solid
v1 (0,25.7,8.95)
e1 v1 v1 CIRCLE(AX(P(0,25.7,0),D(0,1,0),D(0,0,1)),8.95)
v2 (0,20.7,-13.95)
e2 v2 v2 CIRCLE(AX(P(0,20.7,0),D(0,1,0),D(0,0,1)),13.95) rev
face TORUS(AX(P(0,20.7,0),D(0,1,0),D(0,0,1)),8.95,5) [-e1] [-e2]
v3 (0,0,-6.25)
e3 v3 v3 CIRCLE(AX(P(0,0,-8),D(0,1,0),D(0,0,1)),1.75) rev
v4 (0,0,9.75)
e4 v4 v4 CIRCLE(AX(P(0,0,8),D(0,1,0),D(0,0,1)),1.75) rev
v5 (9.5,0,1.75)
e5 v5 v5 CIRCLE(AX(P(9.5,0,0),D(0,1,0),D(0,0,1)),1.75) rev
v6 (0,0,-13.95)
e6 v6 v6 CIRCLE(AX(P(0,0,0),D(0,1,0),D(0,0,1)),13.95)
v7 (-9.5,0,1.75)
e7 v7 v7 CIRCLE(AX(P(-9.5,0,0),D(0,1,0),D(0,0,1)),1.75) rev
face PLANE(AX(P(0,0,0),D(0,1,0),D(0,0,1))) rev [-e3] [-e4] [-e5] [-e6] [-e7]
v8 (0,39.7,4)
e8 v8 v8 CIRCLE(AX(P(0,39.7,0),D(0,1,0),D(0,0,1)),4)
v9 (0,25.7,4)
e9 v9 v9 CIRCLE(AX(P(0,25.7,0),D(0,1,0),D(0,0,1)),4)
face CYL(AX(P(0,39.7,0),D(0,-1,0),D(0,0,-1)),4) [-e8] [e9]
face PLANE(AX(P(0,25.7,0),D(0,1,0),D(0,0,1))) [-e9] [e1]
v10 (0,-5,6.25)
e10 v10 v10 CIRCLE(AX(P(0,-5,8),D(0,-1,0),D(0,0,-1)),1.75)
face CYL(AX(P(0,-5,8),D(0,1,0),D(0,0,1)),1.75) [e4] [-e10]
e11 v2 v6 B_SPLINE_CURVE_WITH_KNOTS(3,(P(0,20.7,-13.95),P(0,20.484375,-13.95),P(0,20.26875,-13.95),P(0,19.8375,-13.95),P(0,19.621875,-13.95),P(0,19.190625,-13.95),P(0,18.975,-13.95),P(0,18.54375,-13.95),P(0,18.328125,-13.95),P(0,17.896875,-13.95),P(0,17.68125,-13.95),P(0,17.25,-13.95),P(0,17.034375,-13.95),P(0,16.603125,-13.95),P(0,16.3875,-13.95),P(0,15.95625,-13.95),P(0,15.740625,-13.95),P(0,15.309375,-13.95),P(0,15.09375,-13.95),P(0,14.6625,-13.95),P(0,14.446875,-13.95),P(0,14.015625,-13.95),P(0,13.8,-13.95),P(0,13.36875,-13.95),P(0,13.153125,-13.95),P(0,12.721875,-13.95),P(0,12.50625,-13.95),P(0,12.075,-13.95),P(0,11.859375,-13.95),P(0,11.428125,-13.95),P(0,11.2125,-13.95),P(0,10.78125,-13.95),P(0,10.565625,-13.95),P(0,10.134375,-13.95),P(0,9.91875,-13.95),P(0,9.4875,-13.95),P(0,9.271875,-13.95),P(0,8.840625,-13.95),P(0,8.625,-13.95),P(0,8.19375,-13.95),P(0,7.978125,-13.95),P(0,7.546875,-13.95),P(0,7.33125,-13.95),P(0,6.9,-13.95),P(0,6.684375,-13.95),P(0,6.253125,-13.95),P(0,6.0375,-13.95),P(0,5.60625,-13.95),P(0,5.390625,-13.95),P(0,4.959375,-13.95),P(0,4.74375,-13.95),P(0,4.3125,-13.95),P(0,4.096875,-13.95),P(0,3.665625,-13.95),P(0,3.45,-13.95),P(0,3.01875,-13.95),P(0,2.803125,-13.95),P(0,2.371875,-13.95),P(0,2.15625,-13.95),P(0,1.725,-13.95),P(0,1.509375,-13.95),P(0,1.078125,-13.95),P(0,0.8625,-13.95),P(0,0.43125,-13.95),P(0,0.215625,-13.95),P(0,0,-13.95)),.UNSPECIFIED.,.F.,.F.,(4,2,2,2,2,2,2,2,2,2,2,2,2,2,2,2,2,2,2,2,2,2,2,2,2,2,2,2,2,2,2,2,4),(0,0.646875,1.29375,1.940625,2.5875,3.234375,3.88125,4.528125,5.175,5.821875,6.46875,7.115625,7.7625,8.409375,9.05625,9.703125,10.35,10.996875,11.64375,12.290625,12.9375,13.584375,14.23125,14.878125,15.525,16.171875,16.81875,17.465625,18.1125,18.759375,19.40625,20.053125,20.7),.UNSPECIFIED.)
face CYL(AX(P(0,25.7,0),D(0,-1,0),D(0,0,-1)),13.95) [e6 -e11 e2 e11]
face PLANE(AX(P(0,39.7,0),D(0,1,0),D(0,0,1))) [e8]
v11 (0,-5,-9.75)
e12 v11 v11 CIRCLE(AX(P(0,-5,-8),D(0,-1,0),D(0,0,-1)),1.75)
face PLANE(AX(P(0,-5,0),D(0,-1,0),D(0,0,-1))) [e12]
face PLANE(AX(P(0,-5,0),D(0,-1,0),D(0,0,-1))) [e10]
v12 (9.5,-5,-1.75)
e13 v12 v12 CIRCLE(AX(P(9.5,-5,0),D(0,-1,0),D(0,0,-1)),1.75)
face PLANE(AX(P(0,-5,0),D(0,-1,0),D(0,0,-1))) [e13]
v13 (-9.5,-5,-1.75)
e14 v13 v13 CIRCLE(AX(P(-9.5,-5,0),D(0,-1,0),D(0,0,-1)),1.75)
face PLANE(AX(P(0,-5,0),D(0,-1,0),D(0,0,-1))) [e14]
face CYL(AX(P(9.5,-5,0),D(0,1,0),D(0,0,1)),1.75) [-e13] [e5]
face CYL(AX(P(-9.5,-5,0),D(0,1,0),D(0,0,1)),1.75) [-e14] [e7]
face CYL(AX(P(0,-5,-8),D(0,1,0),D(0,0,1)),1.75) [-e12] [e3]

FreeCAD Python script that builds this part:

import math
import FreeCAD as App
import Part
import Sketcher
from FreeCAD import Vector
Q = App.Units.Quantity


def edges_at(feature, points):
    """Names of the edges that pass closest to the given points."""
    edges = feature.Shape.Edges
    near = lambda p: min(range(len(edges)), key=lambda i: edges[i].distToShape(Part.Vertex(*p))[0])
    return sorted({f"Edge{near(p) + 1}" for p in points})

doc = App.newDocument("Part")
body = doc.addObject("PartDesign::Body", "Body")

sketch1 = body.newObject("Sketcher::SketchObject", "Sketch")
sketch1.AttachmentSupport = (doc.getObject("XZ_Plane"), [""])
sketch1.MapMode = "FlatFace"
sketch1.addGeometry(Part.Circle(Vector(0, 0, 0), Vector(0, 0, 1), 14), False)
sketch1.addConstraint(Sketcher.Constraint("Coincident", 0, 3, -1, 1))
sketch1.addConstraint(Sketcher.Constraint("Diameter", 0, Q("27.9 mm")))
pad1 = body.newObject("PartDesign::Pad", "Pad")
pad1.Profile = sketch1
pad1.Length = 25.7
pad1.Reversed = True
doc.recompute()

fillet = body.newObject("PartDesign::Fillet", "Fillet")
fillet.Base = (pad1, edges_at(pad1, [(0, 25.7, 13.95)]))
fillet.Radius = 5

sketch2 = body.newObject("Sketcher::SketchObject", "Sketch001")
sketch2.AttachmentSupport = (doc.getObject("XZ_Plane"), [""])
sketch2.MapMode = "FlatFace"
sketch2.AttachmentOffset = App.Placement(Vector(0, 0, -25.7), App.Rotation())
sketch2.addGeometry(Part.Circle(Vector(0, 0, 0), Vector(0, 0, 1), 4), False)
sketch2.addConstraint(Sketcher.Constraint("Coincident", 0, 3, -1, 1))
sketch2.addConstraint(Sketcher.Constraint("Diameter", 0, Q("8 mm")))
pad2 = body.newObject("PartDesign::Pad", "Pad001")
pad2.Profile = sketch2
pad2.Length = 14
pad2.Reversed = True

sketch3 = body.newObject("Sketcher::SketchObject", "Sketch002")
sketch3.AttachmentSupport = (doc.getObject("XZ_Plane"), [""])
sketch3.MapMode = "FlatFace"
sketch3.addGeometry(Part.ArcOfCircle(Part.Circle(Vector(0, 8, 0), Vector(0, 0, 1), 1.8), math.radians(90), math.radians(270)), False)
sketch3.addGeometry(Part.ArcOfCircle(Part.Circle(Vector(0, 8, 0), Vector(0, 0, 1), 1.8), math.radians(-90), math.radians(0)), False)
sketch3.addGeometry(Part.ArcOfCircle(Part.Circle(Vector(0, 8, 0), Vector(0, 0, 1), 1.8), math.radians(0), math.radians(90)), False)
sketch3.addGeometry(Part.Circle(Vector(-9.5, 0, 0), Vector(0, 0, 1), 1.8), False)
sketch3.addGeometry(Part.ArcOfCircle(Part.Circle(Vector(0, -8, 0), Vector(0, 0, 1), 1.8), math.radians(0), math.radians(90)), False)
sketch3.addGeometry(Part.ArcOfCircle(Part.Circle(Vector(0, -8, 0), Vector(0, 0, 1), 1.8), math.radians(90), math.radians(270)), False)
sketch3.addGeometry(Part.ArcOfCircle(Part.Circle(Vector(0, -8, 0), Vector(0, 0, 1), 1.8), math.radians(-90), math.radians(0)), False)
sketch3.addGeometry(Part.Circle(Vector(9.5, 0, 0), Vector(0, 0, 1), 1.8), False)
sketch3.addConstraint(Sketcher.Constraint("Tangent", 0, 2, 1, 1))
sketch3.addConstraint(Sketcher.Constraint("Tangent", 1, 2, 2, 1))
sketch3.addConstraint(Sketcher.Constraint("Tangent", 2, 2, 0, 1))
sketch3.addConstraint(Sketcher.Constraint("Tangent", 4, 2, 5, 1))
sketch3.addConstraint(Sketcher.Constraint("Tangent", 5, 2, 6, 1))
sketch3.addConstraint(Sketcher.Constraint("Tangent", 6, 2, 4, 1))
sketch3.addConstraint(Sketcher.Constraint("Equal", 2, 3))
sketch3.addConstraint(Sketcher.Constraint("Equal", 3, 4))
sketch3.addConstraint(Sketcher.Constraint("Equal", 6, 7))
sketch3.addConstraint(Sketcher.Constraint("Symmetric", 0, 3, 4, 3, -1, 1))
sketch3.addConstraint(Sketcher.Constraint("Symmetric", 3, 3, 7, 3, -1, 1))
sketch3.addConstraint(Sketcher.Constraint("Symmetric", 1, 2, 6, 2, -1))
sketch3.addConstraint(Sketcher.Constraint("PointOnObject", 3, 3, -1))
sketch3.addConstraint(Sketcher.Constraint("PointOnObject", 0, 2, -2))
sketch3.addConstraint(Sketcher.Constraint("PointOnObject", 2, 2, -2))
sketch3.addConstraint(Sketcher.Constraint("PointOnObject", 4, 2, -2))
sketch3.addConstraint(Sketcher.Constraint("PointOnObject", 5, 2, -2))
sketch3.addConstraint(Sketcher.Constraint("Horizontal", 2, 3, 1, 2))
sketch3.addConstraint(Sketcher.Constraint("Diameter", 3, Q("3.5 mm")))
sketch3.addConstraint(Sketcher.Constraint("DistanceY", -1, 1, 0, 3, Q("8 mm")))
sketch3.addConstraint(Sketcher.Constraint("DistanceX", 3, 3, -1, 1, Q("9.5 mm")))
pad3 = body.newObject("PartDesign::Pad", "Pad002")
pad3.Profile = sketch3
pad3.Length = 5

doc.recompute()
